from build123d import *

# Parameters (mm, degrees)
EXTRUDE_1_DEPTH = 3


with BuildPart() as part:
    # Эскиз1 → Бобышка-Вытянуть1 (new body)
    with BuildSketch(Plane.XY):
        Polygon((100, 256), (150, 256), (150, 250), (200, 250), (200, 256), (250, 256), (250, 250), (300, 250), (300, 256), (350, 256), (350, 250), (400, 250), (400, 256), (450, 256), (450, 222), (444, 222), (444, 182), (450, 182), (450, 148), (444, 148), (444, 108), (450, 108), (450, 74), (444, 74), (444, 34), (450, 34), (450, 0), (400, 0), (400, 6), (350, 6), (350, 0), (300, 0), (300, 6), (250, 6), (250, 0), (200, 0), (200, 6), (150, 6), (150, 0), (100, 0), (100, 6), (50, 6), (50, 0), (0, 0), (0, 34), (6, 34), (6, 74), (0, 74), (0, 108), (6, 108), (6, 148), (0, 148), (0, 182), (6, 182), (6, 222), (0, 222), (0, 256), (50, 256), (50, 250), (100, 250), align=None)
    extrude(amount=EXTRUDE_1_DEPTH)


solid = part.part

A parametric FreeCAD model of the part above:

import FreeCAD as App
import Part
import Sketcher

doc = App.newDocument("Part")
params = doc.addObject("Spreadsheet::Sheet", "Params")
for row, (alias, value) in enumerate([
    ("sketch1_width", "50 mm"),
    ("sketch1_width2", "6 mm"),
    ("sketch1_height", "34 mm"),
    ("sketch1_height2", "40 mm"),
    ("pad1_length", "3 mm"),
], start=1):
    params.set(f"A{row}", alias)
    params.set(f"B{row}", "=" + value)
    params.setAlias(f"B{row}", alias)

body = doc.addObject("PartDesign::Body", "Body")

# Sketch on XY plane
sketch1 = body.newObject("Sketcher::SketchObject", "Sketch")
sketch1.AttachmentSupport = (doc.getObject("XY_Plane"), [""])
sketch1.MapMode = "FlatFace"
sketch1.addGeometry(Part.LineSegment(App.Vector(150, 256, 0), App.Vector(100, 256, 0)), False)
sketch1.addGeometry(Part.LineSegment(App.Vector(100, 256, 0), App.Vector(100, 250, 0)), False)
sketch1.addGeometry(Part.LineSegment(App.Vector(100, 250, 0), App.Vector(50, 250, 0)), False)
sketch1.addGeometry(Part.LineSegment(App.Vector(50, 250, 0), App.Vector(50, 256, 0)), False)
sketch1.addGeometry(Part.LineSegment(App.Vector(50, 256, 0), App.Vector(0, 256, 0)), False)
sketch1.addGeometry(Part.LineSegment(App.Vector(0, 256, 0), App.Vector(0, 222, 0)), False)
sketch1.addGeometry(Part.LineSegment(App.Vector(0, 222, 0), App.Vector(6, 222, 0)), False)
sketch1.addGeometry(Part.LineSegment(App.Vector(6, 222, 0), App.Vector(6, 182, 0)), False)
sketch1.addGeometry(Part.LineSegment(App.Vector(6, 182, 0), App.Vector(0, 182, 0)), False)
sketch1.addGeometry(Part.LineSegment(App.Vector(0, 182, 0), App.Vector(0, 148, 0)), False)
sketch1.addGeometry(Part.LineSegment(App.Vector(0, 148, 0), App.Vector(6, 148, 0)), False)
sketch1.addGeometry(Part.LineSegment(App.Vector(6, 148, 0), App.Vector(6, 108, 0)), False)
sketch1.addGeometry(Part.LineSegment(App.Vector(6, 108, 0), App.Vector(0, 108, 0)), False)
sketch1.addGeometry(Part.LineSegment(App.Vector(0, 108, 0), App.Vector(0, 74, 0)), False)
sketch1.addGeometry(Part.LineSegment(App.Vector(0, 74, 0), App.Vector(6, 74, 0)), False)
sketch1.addGeometry(Part.LineSegment(App.Vector(6, 74, 0), App.Vector(6, 34, 0)), False)
sketch1.addGeometry(Part.LineSegment(App.Vector(6, 34, 0), App.Vector(0, 34, 0)), False)
sketch1.addGeometry(Part.LineSegment(App.Vector(0, 34, 0), App.Vector(0, 0, 0)), False)
sketch1.addGeometry(Part.LineSegment(App.Vector(0, 0, 0), App.Vector(50, 0, 0)), False)
sketch1.addGeometry(Part.LineSegment(App.Vector(50, 0, 0), App.Vector(50, 6, 0)), False)
sketch1.addGeometry(Part.LineSegment(App.Vector(50, 6, 0), App.Vector(100, 6, 0)), False)
sketch1.addGeometry(Part.LineSegment(App.Vector(100, 6, 0), App.Vector(100, 0, 0)), False)
sketch1.addGeometry(Part.LineSegment(App.Vector(100, 0, 0), App.Vector(150, 0, 0)), False)
sketch1.addGeometry(Part.LineSegment(App.Vector(150, 0, 0), App.Vector(150, 6, 0)), False)
sketch1.addGeometry(Part.LineSegment(App.Vector(150, 6, 0), App.Vector(200, 6, 0)), False)
sketch1.addGeometry(Part.LineSegment(App.Vector(200, 6, 0), App.Vector(200, 0, 0)), False)
sketch1.addGeometry(Part.LineSegment(App.Vector(200, 0, 0), App.Vector(250, 0, 0)), False)
sketch1.addGeometry(Part.LineSegment(App.Vector(250, 0, 0), App.Vector(250, 6, 0)), False)
sketch1.addGeometry(Part.LineSegment(App.Vector(250, 6, 0), App.Vector(300, 6, 0)), False)
sketch1.addGeometry(Part.LineSegment(App.Vector(300, 6, 0), App.Vector(300, 0, 0)), False)
sketch1.addGeometry(Part.LineSegment(App.Vector(300, 0, 0), App.Vector(350, 0, 0)), False)
sketch1.addGeometry(Part.LineSegment(App.Vector(350, 0, 0), App.Vector(350, 6, 0)), False)
sketch1.addGeometry(Part.LineSegment(App.Vector(350, 6, 0), App.Vector(400, 6, 0)), False)
sketch1.addGeometry(Part.LineSegment(App.Vector(400, 6, 0), App.Vector(400, 0, 0)), False)
sketch1.addGeometry(Part.LineSegment(App.Vector(400, 0, 0), App.Vector(450, 0, 0)), False)
sketch1.addGeometry(Part.LineSegment(App.Vector(450, 0, 0), App.Vector(450, 34, 0)), False)
sketch1.addGeometry(Part.LineSegment(App.Vector(450, 34, 0), App.Vector(444, 34, 0)), False)
sketch1.addGeometry(Part.LineSegment(App.Vector(444, 34, 0), App.Vector(444, 74, 0)), False)
sketch1.addGeometry(Part.LineSegment(App.Vector(444, 74, 0), App.Vector(450, 74, 0)), False)
sketch1.addGeometry(Part.LineSegment(App.Vector(450, 74, 0), App.Vector(450, 108, 0)), False)
sketch1.addGeometry(Part.LineSegment(App.Vector(450, 108, 0), App.Vector(444, 108, 0)), False)
sketch1.addGeometry(Part.LineSegment(App.Vector(444, 108, 0), App.Vector(444, 148, 0)), False)
sketch1.addGeometry(Part.LineSegment(App.Vector(444, 148, 0), App.Vector(450, 148, 0)), False)
sketch1.addGeometry(Part.LineSegment(App.Vector(450, 148, 0), App.Vector(450, 182, 0)), False)
sketch1.addGeometry(Part.LineSegment(App.Vector(450, 182, 0), App.Vector(444, 182, 0)), False)
sketch1.addGeometry(Part.LineSegment(App.Vector(444, 182, 0), App.Vector(444, 222, 0)), False)
sketch1.addGeometry(Part.LineSegment(App.Vector(444, 222, 0), App.Vector(450, 222, 0)), False)
sketch1.addGeometry(Part.LineSegment(App.Vector(450, 222, 0), App.Vector(450, 256, 0)), False)
sketch1.addGeometry(Part.LineSegment(App.Vector(450, 256, 0), App.Vector(400, 256, 0)), False)
sketch1.addGeometry(Part.LineSegment(App.Vector(400, 256, 0), App.Vector(400, 250, 0)), False)
sketch1.addGeometry(Part.LineSegment(App.Vector(400, 250, 0), App.Vector(350, 250, 0)), False)
sketch1.addGeometry(Part.LineSegment(App.Vector(350, 250, 0), App.Vector(350, 256, 0)), False)
sketch1.addGeometry(Part.LineSegment(App.Vector(350, 256, 0), App.Vector(300, 256, 0)), False)
sketch1.addGeometry(Part.LineSegment(App.Vector(300, 256, 0), App.Vector(300, 250, 0)), False)
sketch1.addGeometry(Part.LineSegment(App.Vector(300, 250, 0), App.Vector(250, 250, 0)), False)
sketch1.addGeometry(Part.LineSegment(App.Vector(250, 250, 0), App.Vector(250, 256, 0)), False)
sketch1.addGeometry(Part.LineSegment(App.Vector(250, 256, 0), App.Vector(200, 256, 0)), False)
sketch1.addGeometry(Part.LineSegment(App.Vector(200, 256, 0), App.Vector(200, 250, 0)), False)
sketch1.addGeometry(Part.LineSegment(App.Vector(200, 250, 0), App.Vector(150, 250, 0)), False)
sketch1.addGeometry(Part.LineSegment(App.Vector(150, 250, 0), App.Vector(150, 256, 0)), False)
sketch1.addConstraint(Sketcher.Constraint("Coincident", 0, 2, 1, 1))
sketch1.addConstraint(Sketcher.Constraint("Coincident", 1, 2, 2, 1))
sketch1.addConstraint(Sketcher.Constraint("Coincident", 2, 2, 3, 1))
sketch1.addConstraint(Sketcher.Constraint("Coincident", 3, 2, 4, 1))
sketch1.addConstraint(Sketcher.Constraint("Coincident", 4, 2, 5, 1))
sketch1.addConstraint(Sketcher.Constraint("Coincident", 5, 2, 6, 1))
sketch1.addConstraint(Sketcher.Constraint("Coincident", 6, 2, 7, 1))
sketch1.addConstraint(Sketcher.Constraint("Coincident", 7, 2, 8, 1))
sketch1.addConstraint(Sketcher.Constraint("Coincident", 8, 2, 9, 1))
sketch1.addConstraint(Sketcher.Constraint("Coincident", 9, 2, 10, 1))
sketch1.addConstraint(Sketcher.Constraint("Coincident", 10, 2, 11, 1))
sketch1.addConstraint(Sketcher.Constraint("Coincident", 11, 2, 12, 1))
sketch1.addConstraint(Sketcher.Constraint("Coincident", 12, 2, 13, 1))
sketch1.addConstraint(Sketcher.Constraint("Coincident", 13, 2, 14, 1))
sketch1.addConstraint(Sketcher.Constraint("Coincident", 14, 2, 15, 1))
sketch1.addConstraint(Sketcher.Constraint("Coincident", 15, 2, 16, 1))
sketch1.addConstraint(Sketcher.Constraint("Coincident", 16, 2, 17, 1))
sketch1.addConstraint(Sketcher.Constraint("Coincident", 17, 2, 18, 1))
sketch1.addConstraint(Sketcher.Constraint("Coincident", 18, 2, 19, 1))
sketch1.addConstraint(Sketcher.Constraint("Coincident", 19, 2, 20, 1))
sketch1.addConstraint(Sketcher.Constraint("Coincident", 20, 2, 21, 1))
sketch1.addConstraint(Sketcher.Constraint("Coincident", 21, 2, 22, 1))
sketch1.addConstraint(Sketcher.Constraint("Coincident", 22, 2, 23, 1))
sketch1.addConstraint(Sketcher.Constraint("Coincident", 23, 2, 24, 1))
sketch1.addConstraint(Sketcher.Constraint("Coincident", 24, 2, 25, 1))
sketch1.addConstraint(Sketcher.Constraint("Coincident", 25, 2, 26, 1))
sketch1.addConstraint(Sketcher.Constraint("Coincident", 26, 2, 27, 1))
sketch1.addConstraint(Sketcher.Constraint("Coincident", 27, 2, 28, 1))
sketch1.addConstraint(Sketcher.Constraint("Coincident", 28, 2, 29, 1))
sketch1.addConstraint(Sketcher.Constraint("Coincident", 29, 2, 30, 1))
sketch1.addConstraint(Sketcher.Constraint("Coincident", 30, 2, 31, 1))
sketch1.addConstraint(Sketcher.Constraint("Coincident", 31, 2, 32, 1))
sketch1.addConstraint(Sketcher.Constraint("Coincident", 32, 2, 33, 1))
sketch1.addConstraint(Sketcher.Constraint("Coincident", 33, 2, 34, 1))
sketch1.addConstraint(Sketcher.Constraint("Coincident", 34, 2, 35, 1))
sketch1.addConstraint(Sketcher.Constraint("Coincident", 35, 2, 36, 1))
sketch1.addConstraint(Sketcher.Constraint("Coincident", 36, 2, 37, 1))
sketch1.addConstraint(Sketcher.Constraint("Coincident", 37, 2, 38, 1))
sketch1.addConstraint(Sketcher.Constraint("Coincident", 38, 2, 39, 1))
sketch1.addConstraint(Sketcher.Constraint("Coincident", 39, 2, 40, 1))
sketch1.addConstraint(Sketcher.Constraint("Coincident", 40, 2, 41, 1))
sketch1.addConstraint(Sketcher.Constraint("Coincident", 41, 2, 42, 1))
sketch1.addConstraint(Sketcher.Constraint("Coincident", 42, 2, 43, 1))
sketch1.addConstraint(Sketcher.Constraint("Coincident", 43, 2, 44, 1))
sketch1.addConstraint(Sketcher.Constraint("Coincident", 44, 2, 45, 1))
sketch1.addConstraint(Sketcher.Constraint("Coincident", 45, 2, 46, 1))
sketch1.addConstraint(Sketcher.Constraint("Coincident", 46, 2, 47, 1))
sketch1.addConstraint(Sketcher.Constraint("Coincident", 47, 2, 48, 1))
sketch1.addConstraint(Sketcher.Constraint("Coincident", 48, 2, 49, 1))
sketch1.addConstraint(Sketcher.Constraint("Coincident", 49, 2, 50, 1))
sketch1.addConstraint(Sketcher.Constraint("Coincident", 50, 2, 51, 1))
sketch1.addConstraint(Sketcher.Constraint("Coincident", 51, 2, 52, 1))
sketch1.addConstraint(Sketcher.Constraint("Coincident", 52, 2, 53, 1))
sketch1.addConstraint(Sketcher.Constraint("Coincident", 53, 2, 54, 1))
sketch1.addConstraint(Sketcher.Constraint("Coincident", 54, 2, 55, 1))
sketch1.addConstraint(Sketcher.Constraint("Coincident", 55, 2, 56, 1))
sketch1.addConstraint(Sketcher.Constraint("Coincident", 56, 2, 57, 1))
sketch1.addConstraint(Sketcher.Constraint("Coincident", 57, 2, 58, 1))
sketch1.addConstraint(Sketcher.Constraint("Coincident", 58, 2, 59, 1))
sketch1.addConstraint(Sketcher.Constraint("Coincident", 59, 2, 0, 1))
sketch1.addConstraint(Sketcher.Constraint("Horizontal", 0))
sketch1.addConstraint(Sketcher.Constraint("Vertical", 1))
sketch1.addConstraint(Sketcher.Constraint("Horizontal", 2))
sketch1.addConstraint(Sketcher.Constraint("Vertical", 3))
sketch1.addConstraint(Sketcher.Constraint("Horizontal", 4))
sketch1.addConstraint(Sketcher.Constraint("Vertical", 5))
sketch1.addConstraint(Sketcher.Constraint("Horizontal", 6))
sketch1.addConstraint(Sketcher.Constraint("Vertical", 7))
sketch1.addConstraint(Sketcher.Constraint("Horizontal", 8))
sketch1.addConstraint(Sketcher.Constraint("Vertical", 9))
sketch1.addConstraint(Sketcher.Constraint("Horizontal", 10))
sketch1.addConstraint(Sketcher.Constraint("Vertical", 11))
sketch1.addConstraint(Sketcher.Constraint("Horizontal", 12))
sketch1.addConstraint(Sketcher.Constraint("Vertical", 13))
sketch1.addConstraint(Sketcher.Constraint("Horizontal", 14))
sketch1.addConstraint(Sketcher.Constraint("Vertical", 15))
sketch1.addConstraint(Sketcher.Constraint("Horizontal", 16))
sketch1.addConstraint(Sketcher.Constraint("Vertical", 17))
sketch1.addConstraint(Sketcher.Constraint("Horizontal", 18))
sketch1.addConstraint(Sketcher.Constraint("Vertical", 19))
sketch1.addConstraint(Sketcher.Constraint("Horizontal", 20))
sketch1.addConstraint(Sketcher.Constraint("Vertical", 21))
sketch1.addConstraint(Sketcher.Constraint("Horizontal", 22))
sketch1.addConstraint(Sketcher.Constraint("Vertical", 23))
sketch1.addConstraint(Sketcher.Constraint("Horizontal", 24))
sketch1.addConstraint(Sketcher.Constraint("Vertical", 25))
sketch1.addConstraint(Sketcher.Constraint("Horizontal", 26))
sketch1.addConstraint(Sketcher.Constraint("Vertical", 27))
sketch1.addConstraint(Sketcher.Constraint("Horizontal", 28))
sketch1.addConstraint(Sketcher.Constraint("Vertical", 29))
sketch1.addConstraint(Sketcher.Constraint("Horizontal", 30))
sketch1.addConstraint(Sketcher.Constraint("Vertical", 31))
sketch1.addConstraint(Sketcher.Constraint("Horizontal", 32))
sketch1.addConstraint(Sketcher.Constraint("Vertical", 33))
sketch1.addConstraint(Sketcher.Constraint("Horizontal", 34))
sketch1.addConstraint(Sketcher.Constraint("Vertical", 35))
sketch1.addConstraint(Sketcher.Constraint("Horizontal", 36))
sketch1.addConstraint(Sketcher.Constraint("Vertical", 37))
sketch1.addConstraint(Sketcher.Constraint("Horizontal", 38))
sketch1.addConstraint(Sketcher.Constraint("Vertical", 39))
sketch1.addConstraint(Sketcher.Constraint("Horizontal", 40))
sketch1.addConstraint(Sketcher.Constraint("Vertical", 41))
sketch1.addConstraint(Sketcher.Constraint("Horizontal", 42))
sketch1.addConstraint(Sketcher.Constraint("Vertical", 43))
sketch1.addConstraint(Sketcher.Constraint("Horizontal", 44))
sketch1.addConstraint(Sketcher.Constraint("Vertical", 45))
sketch1.addConstraint(Sketcher.Constraint("Horizontal", 46))
sketch1.addConstraint(Sketcher.Constraint("Vertical", 47))
sketch1.addConstraint(Sketcher.Constraint("Horizontal", 48))
sketch1.addConstraint(Sketcher.Constraint("Vertical", 49))
sketch1.addConstraint(Sketcher.Constraint("Horizontal", 50))
sketch1.addConstraint(Sketcher.Constraint("Vertical", 51))
sketch1.addConstraint(Sketcher.Constraint("Horizontal", 52))
sketch1.addConstraint(Sketcher.Constraint("Vertical", 53))
sketch1.addConstraint(Sketcher.Constraint("Horizontal", 54))
sketch1.addConstraint(Sketcher.Constraint("Vertical", 55))
sketch1.addConstraint(Sketcher.Constraint("Horizontal", 56))
sketch1.addConstraint(Sketcher.Constraint("Vertical", 57))
sketch1.addConstraint(Sketcher.Constraint("Horizontal", 58))
sketch1.addConstraint(Sketcher.Constraint("Vertical", 59))
sketch1.addConstraint(Sketcher.Constraint("Coincident", 17, 2, -1, 1))
sketch1.addConstraint(Sketcher.Constraint("PointOnObject", 4, 2, -2))
sketch1.addConstraint(Sketcher.Constraint("PointOnObject", 8, 2, -2))
sketch1.addConstraint(Sketcher.Constraint("PointOnObject", 12, 2, -2))
sketch1.addConstraint(Sketcher.Constraint("PointOnObject", 21, 2, -1))
sketch1.addConstraint(Sketcher.Constraint("PointOnObject", 25, 2, -1))
sketch1.addConstraint(Sketcher.Constraint("PointOnObject", 29, 2, -1))
sketch1.addConstraint(Sketcher.Constraint("PointOnObject", 33, 2, -1))
sketch1.addConstraint(Sketcher.Constraint("Horizontal", 0, 2, 3, 2))
sketch1.addConstraint(Sketcher.Constraint("Horizontal", 20, 2, 23, 2))
sketch1.addConstraint(Sketcher.Constraint("Horizontal", 24, 2, 27, 2))
sketch1.addConstraint(Sketcher.Constraint("Horizontal", 28, 2, 31, 2))
sketch1.addConstraint(Sketcher.Constraint("Horizontal", 16, 2, 35, 2))
sketch1.addConstraint(Sketcher.Constraint("Horizontal", 14, 2, 37, 2))
sketch1.addConstraint(Sketcher.Constraint("Horizontal", 12, 2, 39, 2))
sketch1.addConstraint(Sketcher.Constraint("Horizontal", 10, 2, 41, 2))
sketch1.addConstraint(Sketcher.Constraint("Horizontal", 8, 2, 43, 2))
sketch1.addConstraint(Sketcher.Constraint("Horizontal", 6, 2, 45, 2))
sketch1.addConstraint(Sketcher.Constraint("Horizontal", 4, 2, 47, 2))
sketch1.addConstraint(Sketcher.Constraint("Horizontal", 2, 2, 49, 2))
sketch1.addConstraint(Sketcher.Constraint("Horizontal", 48, 2, 51, 2))
sketch1.addConstraint(Sketcher.Constraint("Horizontal", 50, 2, 53, 2))
sketch1.addConstraint(Sketcher.Constraint("Horizontal", 52, 2, 55, 2))
sketch1.addConstraint(Sketcher.Constraint("Horizontal", 54, 2, 57, 2))
sketch1.addConstraint(Sketcher.Constraint("Vertical", 7, 2, 10, 2))
sketch1.addConstraint(Sketcher.Constraint("Vertical", 11, 2, 14, 2))
sketch1.addConstraint(Sketcher.Constraint("Vertical", 3, 2, 18, 2))
sketch1.addConstraint(Sketcher.Constraint("Vertical", 1, 2, 20, 2))
sketch1.addConstraint(Sketcher.Constraint("Vertical", 35, 2, 38, 2))
sketch1.addConstraint(Sketcher.Constraint("Vertical", 37, 2, 40, 2))
sketch1.addConstraint(Sketcher.Constraint("Vertical", 39, 2, 42, 2))
sketch1.addConstraint(Sketcher.Constraint("Vertical", 41, 2, 44, 2))
sketch1.addConstraint(Sketcher.Constraint("Vertical", 43, 2, 46, 2))
sketch1.addConstraint(Sketcher.Constraint("Vertical", 33, 2, 48, 2))
sketch1.addConstraint(Sketcher.Constraint("Vertical", 31, 2, 50, 2))
sketch1.addConstraint(Sketcher.Constraint("Vertical", 29, 2, 52, 2))
sketch1.addConstraint(Sketcher.Constraint("Vertical", 27, 2, 54, 2))
sketch1.addConstraint(Sketcher.Constraint("Vertical", 25, 2, 56, 2))
sketch1.addConstraint(Sketcher.Constraint("Vertical", 23, 2, 58, 2))
sketch1.addConstraint(Sketcher.Constraint("Equal", 0, 2))
sketch1.addConstraint(Sketcher.Constraint("Equal", 2, 4))
sketch1.addConstraint(Sketcher.Constraint("Equal", 22, 24))
sketch1.addConstraint(Sketcher.Constraint("Equal", 24, 26))
sketch1.addConstraint(Sketcher.Constraint("Equal", 26, 28))
sketch1.addConstraint(Sketcher.Constraint("Equal", 28, 30))
sketch1.addConstraint(Sketcher.Constraint("Equal", 30, 32))
sketch1.addConstraint(Sketcher.Constraint("Equal", 32, 34))
sketch1.addConstraint(Sketcher.Constraint("Equal", 16, 36))
sketch1.addConstraint(Sketcher.Constraint("Equal", 46, 1))
sketch1.addConstraint(Sketcher.Constraint("Equal", 5, 9))
sketch1.addConstraint(Sketcher.Constraint("Equal", 7, 11))
sketch1.addConstraint(Sketcher.Constraint("Equal", 9, 13))
sketch1.addConstraint(Sketcher.Constraint("Equal", 11, 15))
sketch1.addConstraint(Sketcher.Constraint("Equal", 13, 17))
sketch1.addConstraint(Sketcher.Constraint("Equal", 3, 19))
sketch1.addConstraint(Sketcher.Constraint("DistanceX", 0, 2, 0, 1, 50.0))
sketch1.addConstraint(Sketcher.Constraint("DistanceX", 6, 1, 6, 2, 6.0))
sketch1.addConstraint(Sketcher.Constraint("DistanceY", 5, 2, 5, 1, 34.0))
sketch1.addConstraint(Sketcher.Constraint("DistanceY", 7, 2, 7, 1, 40.0))
sketch1.setExpression("Constraints[175]", "Params.sketch1_width")
sketch1.setExpression("Constraints[176]", "Params.sketch1_width2")
sketch1.setExpression("Constraints[177]", "Params.sketch1_height")
sketch1.setExpression("Constraints[178]", "Params.sketch1_height2")
pad1 = body.newObject("PartDesign::Pad", "Pad")
pad1.Profile = sketch1
pad1.setExpression("Length", "Params.pad1_length")

doc.recompute()
